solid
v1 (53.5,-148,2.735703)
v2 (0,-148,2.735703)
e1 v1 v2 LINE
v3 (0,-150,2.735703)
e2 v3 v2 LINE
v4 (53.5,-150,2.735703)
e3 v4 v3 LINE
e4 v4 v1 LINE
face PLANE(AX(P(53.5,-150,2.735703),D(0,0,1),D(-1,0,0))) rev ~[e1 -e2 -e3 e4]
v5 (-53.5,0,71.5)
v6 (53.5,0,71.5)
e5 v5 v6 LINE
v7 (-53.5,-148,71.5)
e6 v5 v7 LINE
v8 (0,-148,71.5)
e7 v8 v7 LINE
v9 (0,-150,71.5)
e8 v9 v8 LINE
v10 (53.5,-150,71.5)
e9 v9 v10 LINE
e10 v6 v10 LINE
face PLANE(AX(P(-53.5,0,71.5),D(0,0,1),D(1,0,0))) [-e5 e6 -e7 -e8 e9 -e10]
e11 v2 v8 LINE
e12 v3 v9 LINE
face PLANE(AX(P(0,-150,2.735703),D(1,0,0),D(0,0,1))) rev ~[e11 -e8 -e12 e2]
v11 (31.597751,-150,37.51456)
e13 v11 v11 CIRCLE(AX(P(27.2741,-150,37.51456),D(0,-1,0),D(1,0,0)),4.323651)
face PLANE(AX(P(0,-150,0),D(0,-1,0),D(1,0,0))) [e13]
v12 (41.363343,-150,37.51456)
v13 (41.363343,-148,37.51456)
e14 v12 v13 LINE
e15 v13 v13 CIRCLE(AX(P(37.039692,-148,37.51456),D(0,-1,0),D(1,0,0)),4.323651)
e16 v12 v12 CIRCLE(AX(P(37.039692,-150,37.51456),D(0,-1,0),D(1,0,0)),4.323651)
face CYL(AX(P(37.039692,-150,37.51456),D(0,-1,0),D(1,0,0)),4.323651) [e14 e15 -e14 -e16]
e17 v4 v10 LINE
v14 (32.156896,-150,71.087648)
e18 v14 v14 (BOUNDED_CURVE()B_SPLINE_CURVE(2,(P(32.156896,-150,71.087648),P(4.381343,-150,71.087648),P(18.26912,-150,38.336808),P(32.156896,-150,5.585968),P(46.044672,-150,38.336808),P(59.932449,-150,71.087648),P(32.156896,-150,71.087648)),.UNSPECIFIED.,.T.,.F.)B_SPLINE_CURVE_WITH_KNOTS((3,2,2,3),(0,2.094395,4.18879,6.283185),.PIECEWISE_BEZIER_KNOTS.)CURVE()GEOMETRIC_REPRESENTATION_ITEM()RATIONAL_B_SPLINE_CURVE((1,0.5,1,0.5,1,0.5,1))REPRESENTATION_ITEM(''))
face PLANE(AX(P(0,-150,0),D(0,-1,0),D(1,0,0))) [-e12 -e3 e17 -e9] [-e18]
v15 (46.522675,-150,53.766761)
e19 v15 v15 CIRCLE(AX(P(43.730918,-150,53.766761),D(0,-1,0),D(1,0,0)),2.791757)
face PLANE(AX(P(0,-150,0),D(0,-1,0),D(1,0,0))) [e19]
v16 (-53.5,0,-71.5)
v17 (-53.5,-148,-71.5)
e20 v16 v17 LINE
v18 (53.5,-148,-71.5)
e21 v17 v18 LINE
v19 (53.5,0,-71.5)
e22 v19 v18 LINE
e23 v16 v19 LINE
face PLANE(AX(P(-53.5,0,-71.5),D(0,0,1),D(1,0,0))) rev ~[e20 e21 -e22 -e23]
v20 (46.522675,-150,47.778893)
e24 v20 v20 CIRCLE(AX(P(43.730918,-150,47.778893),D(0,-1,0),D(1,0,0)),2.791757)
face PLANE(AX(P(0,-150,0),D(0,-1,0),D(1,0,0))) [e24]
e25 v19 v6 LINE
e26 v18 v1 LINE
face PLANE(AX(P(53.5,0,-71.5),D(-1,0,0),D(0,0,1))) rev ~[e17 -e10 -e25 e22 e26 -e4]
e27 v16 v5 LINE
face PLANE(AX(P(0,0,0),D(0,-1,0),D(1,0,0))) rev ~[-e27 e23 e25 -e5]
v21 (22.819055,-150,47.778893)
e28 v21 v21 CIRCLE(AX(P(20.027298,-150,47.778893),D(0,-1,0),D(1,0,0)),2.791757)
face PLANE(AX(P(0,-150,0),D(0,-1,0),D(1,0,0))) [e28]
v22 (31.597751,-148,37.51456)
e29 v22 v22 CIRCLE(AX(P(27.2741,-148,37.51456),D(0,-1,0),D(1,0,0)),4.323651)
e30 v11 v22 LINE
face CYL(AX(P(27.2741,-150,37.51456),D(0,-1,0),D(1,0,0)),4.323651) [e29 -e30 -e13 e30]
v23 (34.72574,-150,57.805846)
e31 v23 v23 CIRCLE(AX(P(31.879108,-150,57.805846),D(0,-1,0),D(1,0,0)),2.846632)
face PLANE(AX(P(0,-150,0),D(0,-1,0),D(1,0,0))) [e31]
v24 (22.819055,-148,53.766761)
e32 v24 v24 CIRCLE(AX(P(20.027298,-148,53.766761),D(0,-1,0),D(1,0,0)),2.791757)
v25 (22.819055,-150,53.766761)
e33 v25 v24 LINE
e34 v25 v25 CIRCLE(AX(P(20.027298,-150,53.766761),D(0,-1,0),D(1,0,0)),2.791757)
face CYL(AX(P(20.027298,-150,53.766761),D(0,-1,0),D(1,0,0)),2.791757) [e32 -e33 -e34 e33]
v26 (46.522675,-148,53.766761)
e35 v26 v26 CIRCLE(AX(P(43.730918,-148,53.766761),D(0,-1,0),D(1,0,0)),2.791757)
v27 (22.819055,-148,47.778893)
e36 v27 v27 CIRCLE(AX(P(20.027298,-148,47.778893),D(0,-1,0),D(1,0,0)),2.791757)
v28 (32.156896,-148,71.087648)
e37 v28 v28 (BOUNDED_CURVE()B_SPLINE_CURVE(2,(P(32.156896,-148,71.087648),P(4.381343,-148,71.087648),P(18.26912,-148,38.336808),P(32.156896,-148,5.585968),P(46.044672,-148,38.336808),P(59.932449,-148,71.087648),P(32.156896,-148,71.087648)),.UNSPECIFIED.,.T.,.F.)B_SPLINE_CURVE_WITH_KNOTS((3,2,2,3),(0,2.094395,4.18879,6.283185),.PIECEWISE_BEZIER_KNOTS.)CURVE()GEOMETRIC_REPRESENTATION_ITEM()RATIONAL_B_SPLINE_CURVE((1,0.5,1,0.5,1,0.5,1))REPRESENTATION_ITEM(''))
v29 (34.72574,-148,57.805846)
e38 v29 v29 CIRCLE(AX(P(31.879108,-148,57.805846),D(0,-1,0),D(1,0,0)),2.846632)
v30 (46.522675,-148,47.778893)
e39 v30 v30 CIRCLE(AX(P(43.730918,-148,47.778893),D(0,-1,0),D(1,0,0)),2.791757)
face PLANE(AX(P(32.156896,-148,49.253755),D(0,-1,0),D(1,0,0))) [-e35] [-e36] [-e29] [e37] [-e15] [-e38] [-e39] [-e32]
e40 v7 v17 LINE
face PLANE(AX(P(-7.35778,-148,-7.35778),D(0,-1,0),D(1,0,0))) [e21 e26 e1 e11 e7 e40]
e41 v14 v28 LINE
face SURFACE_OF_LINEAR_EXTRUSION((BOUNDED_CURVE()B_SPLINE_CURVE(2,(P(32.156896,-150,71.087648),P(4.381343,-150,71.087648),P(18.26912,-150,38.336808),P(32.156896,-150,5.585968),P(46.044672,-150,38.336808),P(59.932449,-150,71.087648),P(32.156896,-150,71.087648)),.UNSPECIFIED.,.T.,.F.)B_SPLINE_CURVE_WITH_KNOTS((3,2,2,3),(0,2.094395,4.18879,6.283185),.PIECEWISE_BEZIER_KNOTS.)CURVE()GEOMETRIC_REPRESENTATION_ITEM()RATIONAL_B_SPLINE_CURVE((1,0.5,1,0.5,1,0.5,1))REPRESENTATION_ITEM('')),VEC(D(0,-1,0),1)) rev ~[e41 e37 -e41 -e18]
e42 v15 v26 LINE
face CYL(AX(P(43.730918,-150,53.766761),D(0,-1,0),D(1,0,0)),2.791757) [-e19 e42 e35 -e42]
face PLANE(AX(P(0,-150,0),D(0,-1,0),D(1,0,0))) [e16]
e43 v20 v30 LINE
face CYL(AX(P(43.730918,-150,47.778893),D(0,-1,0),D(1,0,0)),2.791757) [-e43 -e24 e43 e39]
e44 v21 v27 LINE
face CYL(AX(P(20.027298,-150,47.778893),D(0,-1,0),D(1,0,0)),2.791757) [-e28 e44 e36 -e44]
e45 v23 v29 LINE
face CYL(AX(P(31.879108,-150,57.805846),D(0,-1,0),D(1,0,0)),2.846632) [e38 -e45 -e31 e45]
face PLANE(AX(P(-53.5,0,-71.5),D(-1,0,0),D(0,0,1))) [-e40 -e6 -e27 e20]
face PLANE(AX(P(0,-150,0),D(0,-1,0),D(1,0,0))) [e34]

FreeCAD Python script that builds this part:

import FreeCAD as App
import Part
import Sketcher
from FreeCAD import Vector

doc = App.newDocument("Part")
body = doc.addObject("PartDesign::Body", "Body")

# Sketch on XZ plane
sketch1 = body.newObject("Sketcher::SketchObject", "Sketch")
sketch1.AttachmentSupport = (doc.getObject("XZ_Plane"), [""])
sketch1.MapMode = "FlatFace"
sketch1.addGeometry([
    Part.LineSegment(Vector(-54, 72, 0), Vector(-54, -72, 0)),
    Part.LineSegment(Vector(-54, -72, 0), Vector(54, -72, 0)),
    Part.LineSegment(Vector(54, -72, 0), Vector(54, 72, 0)),
    Part.LineSegment(Vector(54, 72, 0), Vector(-54, 72, 0)),
], False)
sketch1.addConstraint([
    Sketcher.Constraint("Coincident", 0, 2, 1, 1),
    Sketcher.Constraint("Coincident", 1, 2, 2, 1),
    Sketcher.Constraint("Coincident", 2, 2, 3, 1),
    Sketcher.Constraint("Coincident", 3, 2, 0, 1),
    Sketcher.Constraint("Vertical", 0),
    Sketcher.Constraint("Horizontal", 1),
    Sketcher.Constraint("Vertical", 2),
    Sketcher.Constraint("Horizontal", 3),
    Sketcher.Constraint("Symmetric", 0, 2, 2, 2, -1, 1),
    Sketcher.Constraint("DistanceX", 1, 1, 1, 2, 107.0),
    Sketcher.Constraint("DistanceY", 0, 2, 0, 1, 143.0),
])
pad1 = body.newObject("PartDesign::Pad", "Pad")
pad1.Profile = sketch1
pad1.Length = 150

# Sketch on XZ plane
sketch2 = body.newObject("Sketcher::SketchObject", "Sketch001")
sketch2.AttachmentSupport = (doc.getObject("XZ_Plane"), [""])
sketch2.MapMode = "FlatFace"
sketch2.AttachmentOffset = App.Placement(Vector(0, 0, 150), App.Rotation())
sketch2.addGeometry([
    Part.LineSegment(Vector(0, 2.735703, 0), Vector(0, 71.5, 0)),  # 0
    Part.LineSegment(Vector(0, 71.5, 0), Vector(-53.5, 71.5, 0)),  # 1
    Part.LineSegment(Vector(-53.5, 71.5, 0), Vector(-53.5, -71.5, 0)),  # 2
    Part.LineSegment(Vector(-53.5, -71.5, 0), Vector(53.5, -71.5, 0)),  # 3
    Part.LineSegment(Vector(53.5, -71.5, 0), Vector(53.5, 2.735703, 0)),  # 4
    Part.LineSegment(Vector(53.5, 2.735703, 0), Vector(0, 2.735703, 0)),  # 5
    Part.BSplineCurve([Vector(32.156896, 71.087648, 0), Vector(4.381343, 71.087648, 0), Vector(18.26912, 38.336808, 0), Vector(32.156896, 5.585968, 0), Vector(46.044672, 38.336808, 0), Vector(59.932449, 71.087648, 0), Vector(32.156896, 71.087648, 0)], [3, 2, 2, 3], [0, 2.094395, 4.18879, 6.283185], False, 2, [1, 0.5, 1, 0.5, 1, 0.5, 1], False),  # 6
    Part.Circle(Vector(27.2741, 37.51456, 0), Vector(0, 0, 1), 4.323651),  # 7
    Part.Circle(Vector(37.039692, 37.51456, 0), Vector(0, 0, 1), 4.323651),  # 8
    Part.Circle(Vector(20.027298, 47.778893, 0), Vector(0, 0, 1), 2.791757),  # 9
    Part.Circle(Vector(20.027298, 53.766761, 0), Vector(0, 0, 1), 2.791757),  # 10
    Part.Circle(Vector(43.730918, 47.778893, 0), Vector(0, 0, 1), 2.791757),  # 11
    Part.Circle(Vector(43.730918, 53.766761, 0), Vector(0, 0, 1), 2.791757),  # 12
    Part.Circle(Vector(31.879108, 57.805846, 0), Vector(0, 0, 1), 2.846632),  # 13
], False)
sketch2.addConstraint([
    Sketcher.Constraint("Block", 6),
    Sketcher.Constraint("Coincident", 0, 2, 1, 1),
    Sketcher.Constraint("Coincident", 1, 2, 2, 1),
    Sketcher.Constraint("Coincident", 2, 2, 3, 1),
    Sketcher.Constraint("Coincident", 3, 2, 4, 1),
    Sketcher.Constraint("Coincident", 4, 2, 5, 1),
    Sketcher.Constraint("Coincident", 5, 2, 0, 1),
    Sketcher.Constraint("Vertical", 0),
    Sketcher.Constraint("Horizontal", 1),
    Sketcher.Constraint("Vertical", 2),
    Sketcher.Constraint("Horizontal", 3),
    Sketcher.Constraint("Vertical", 4),
    Sketcher.Constraint("Horizontal", 5),
    Sketcher.Constraint("Equal", 7, 8),
    Sketcher.Constraint("Equal", 9, 10),
    Sketcher.Constraint("Equal", 10, 11),
    Sketcher.Constraint("Equal", 11, 12),
    Sketcher.Constraint("Symmetric", 1, 2, 3, 2, -1, 1),
    Sketcher.Constraint("PointOnObject", 0, 2, -2),
    Sketcher.Constraint("Horizontal", 7, 3, 8, 3),
    Sketcher.Constraint("Horizontal", 9, 3, 11, 3),
    Sketcher.Constraint("Horizontal", 10, 3, 12, 3),
    Sketcher.Constraint("Vertical", 9, 3, 10, 3),
    Sketcher.Constraint("Vertical", 11, 3, 12, 3),
    Sketcher.Constraint("DistanceX", 3, 1, 3, 2, 107.0),
    Sketcher.Constraint("DistanceY", 2, 2, 2, 1, 143.0),
    Sketcher.Constraint("Diameter", 7, 8.647302),
    Sketcher.Constraint("Diameter", 9, 5.583514),
    Sketcher.Constraint("Diameter", 13, 5.693264),
    Sketcher.Constraint("DistanceX", -1, 1, 7, 3, 27.2741),
    Sketcher.Constraint("DistanceY", 7, 3, 10, 3, 16.252201),
    Sketcher.Constraint("DistanceX", 1, 2, 10, 3, 73.527298),
    Sketcher.Constraint("DistanceY", 0, 1, 0, 2, 68.764297),
    Sketcher.Constraint("DistanceY", -1, 1, 7, 3, 37.51456),
    Sketcher.Constraint("DistanceX", -1, 1, 11, 3, 43.730918),
    Sketcher.Constraint("DistanceY", 9, 3, 10, 3, 5.987868),
    Sketcher.Constraint("DistanceX", 10, 3, 13, 3, 11.85181),
    Sketcher.Constraint("DistanceX", -1, 1, 8, 3, 37.039692),
    Sketcher.Constraint("DistanceY", -1, 1, 13, 3, 57.805846),
])
pocket1 = body.newObject("PartDesign::Pocket", "Pocket")
pocket1.Profile = sketch2
pocket1.Length = 2

doc.recompute()
